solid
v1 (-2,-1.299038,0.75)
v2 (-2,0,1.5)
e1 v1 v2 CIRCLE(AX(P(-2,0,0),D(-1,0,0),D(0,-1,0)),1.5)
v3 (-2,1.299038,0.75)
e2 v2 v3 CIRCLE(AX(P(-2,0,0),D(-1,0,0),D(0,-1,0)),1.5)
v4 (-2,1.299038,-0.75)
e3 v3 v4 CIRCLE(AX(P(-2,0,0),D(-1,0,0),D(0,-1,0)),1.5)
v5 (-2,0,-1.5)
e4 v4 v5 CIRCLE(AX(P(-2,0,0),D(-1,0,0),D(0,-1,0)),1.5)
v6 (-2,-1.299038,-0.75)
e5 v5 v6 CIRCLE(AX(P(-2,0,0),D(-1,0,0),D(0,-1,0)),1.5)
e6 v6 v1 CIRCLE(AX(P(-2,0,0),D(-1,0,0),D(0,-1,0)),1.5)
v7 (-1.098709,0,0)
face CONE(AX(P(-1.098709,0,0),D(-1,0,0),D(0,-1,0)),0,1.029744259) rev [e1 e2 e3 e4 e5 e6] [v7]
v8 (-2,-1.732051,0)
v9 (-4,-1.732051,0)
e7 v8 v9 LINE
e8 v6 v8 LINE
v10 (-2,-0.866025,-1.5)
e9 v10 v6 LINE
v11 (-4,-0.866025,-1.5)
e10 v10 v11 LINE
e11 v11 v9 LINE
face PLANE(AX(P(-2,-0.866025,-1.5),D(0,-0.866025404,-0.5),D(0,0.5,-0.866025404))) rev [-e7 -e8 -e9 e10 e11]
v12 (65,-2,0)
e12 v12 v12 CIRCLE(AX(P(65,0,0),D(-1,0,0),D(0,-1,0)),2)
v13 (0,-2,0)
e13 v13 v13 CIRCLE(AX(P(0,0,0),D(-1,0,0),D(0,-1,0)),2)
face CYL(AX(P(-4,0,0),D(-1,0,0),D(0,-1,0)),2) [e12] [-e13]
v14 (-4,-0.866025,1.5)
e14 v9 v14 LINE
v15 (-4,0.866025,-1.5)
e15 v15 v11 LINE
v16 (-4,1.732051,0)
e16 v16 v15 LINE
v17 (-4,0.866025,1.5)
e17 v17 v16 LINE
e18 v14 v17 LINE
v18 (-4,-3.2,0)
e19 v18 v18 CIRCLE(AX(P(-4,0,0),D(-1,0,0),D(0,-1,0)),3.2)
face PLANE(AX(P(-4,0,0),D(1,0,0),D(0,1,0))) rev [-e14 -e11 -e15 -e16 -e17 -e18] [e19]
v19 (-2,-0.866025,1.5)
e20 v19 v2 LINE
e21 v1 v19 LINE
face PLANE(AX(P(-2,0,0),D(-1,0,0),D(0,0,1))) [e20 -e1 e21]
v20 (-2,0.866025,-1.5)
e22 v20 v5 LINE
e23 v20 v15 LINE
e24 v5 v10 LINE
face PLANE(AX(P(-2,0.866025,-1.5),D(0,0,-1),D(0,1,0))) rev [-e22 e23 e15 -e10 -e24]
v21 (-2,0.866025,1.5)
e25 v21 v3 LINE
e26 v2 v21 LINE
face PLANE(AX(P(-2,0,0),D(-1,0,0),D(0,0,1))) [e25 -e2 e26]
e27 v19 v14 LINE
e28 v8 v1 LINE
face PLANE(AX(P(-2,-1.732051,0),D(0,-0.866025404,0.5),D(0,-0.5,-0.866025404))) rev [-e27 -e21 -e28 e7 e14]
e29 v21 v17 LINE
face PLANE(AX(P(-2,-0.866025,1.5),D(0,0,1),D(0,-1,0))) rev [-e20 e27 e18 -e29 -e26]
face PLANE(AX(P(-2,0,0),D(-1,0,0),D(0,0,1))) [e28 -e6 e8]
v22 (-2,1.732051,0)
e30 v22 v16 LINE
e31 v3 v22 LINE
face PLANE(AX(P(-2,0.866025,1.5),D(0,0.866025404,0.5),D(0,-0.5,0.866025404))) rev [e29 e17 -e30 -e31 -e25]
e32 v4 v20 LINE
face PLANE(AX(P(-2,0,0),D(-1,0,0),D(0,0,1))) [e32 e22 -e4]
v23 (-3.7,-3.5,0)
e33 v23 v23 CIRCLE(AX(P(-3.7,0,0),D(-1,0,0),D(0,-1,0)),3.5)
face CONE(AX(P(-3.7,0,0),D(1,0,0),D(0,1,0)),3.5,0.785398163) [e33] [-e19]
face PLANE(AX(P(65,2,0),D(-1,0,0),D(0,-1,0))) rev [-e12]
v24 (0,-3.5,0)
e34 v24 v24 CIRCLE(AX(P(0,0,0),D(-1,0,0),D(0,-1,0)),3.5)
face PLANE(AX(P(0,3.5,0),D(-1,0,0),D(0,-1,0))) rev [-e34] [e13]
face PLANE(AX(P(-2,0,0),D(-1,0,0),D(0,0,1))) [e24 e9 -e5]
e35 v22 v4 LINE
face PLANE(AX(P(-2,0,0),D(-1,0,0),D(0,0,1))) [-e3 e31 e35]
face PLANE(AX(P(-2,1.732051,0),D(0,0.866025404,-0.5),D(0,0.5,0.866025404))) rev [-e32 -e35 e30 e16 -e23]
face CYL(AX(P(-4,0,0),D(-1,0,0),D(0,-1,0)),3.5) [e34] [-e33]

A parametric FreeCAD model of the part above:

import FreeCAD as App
import Part
import Sketcher
from FreeCAD import Vector
Q = App.Units.Quantity


def add_polygon(sketch, points):
    """Adds a closed chain of lines whose ends are joined by coincident constraints."""
    first, n = sketch.GeometryCount, len(points)
    for a, b in zip(points, points[1:] + points[:1]):
        sketch.addGeometry(Part.LineSegment(App.Vector(*a, 0), App.Vector(*b, 0)), False)
    for i in range(n):
        sketch.addConstraint(Sketcher.Constraint("Coincident", first + i, 2, first + (i + 1) % n, 1))

doc = App.newDocument("Part")
params = doc.addObject("Spreadsheet::Sheet", "Params")
for row, (alias, value) in enumerate([
    ("sketch1_width", "69 mm"),
    ("sketch1_width2", "65 mm"),
    ("sketch1_height", "2 mm"),
    ("sketch1_width3", "3.7 mm"),
    ("sketch1_height2", "3.2 mm"),
    ("revolution_angle", "360 deg"),
    ("pocket1_length", "2 mm"),
    ("sketch3_height", "1.5 mm"),
    ("groove_angle", "360 deg"),
], start=1):
    params.set(f"A{row}", alias)
    params.set(f"B{row}", "=" + value)
    params.setAlias(f"B{row}", alias)

body = doc.addObject("PartDesign::Body", "Body")

sketch1 = body.newObject("Sketcher::SketchObject", "Sketch")
sketch1.AttachmentSupport = (doc.getObject("XY_Plane"), [""])
sketch1.MapMode = "FlatFace"
add_polygon(sketch1, [(-4, 3.2), (-4, 0), (65, 0), (65, 2), (0, 2), (0, 3.5), (-3.7, 3.5)])
sketch1.addConstraint([
    Sketcher.Constraint("Vertical", 0),
    Sketcher.Constraint("Horizontal", 1),
    Sketcher.Constraint("Vertical", 2),
    Sketcher.Constraint("Horizontal", 3),
    Sketcher.Constraint("Vertical", 4),
    Sketcher.Constraint("Horizontal", 5),
    Sketcher.Constraint("PointOnObject", 0, 2, -1),
    Sketcher.Constraint("PointOnObject", 3, 2, -2),
    Sketcher.Constraint("DistanceX", 1, 1, 1, 2, Q("69 mm")),
    Sketcher.Constraint("DistanceX", 3, 2, 3, 1, Q("65 mm")),
    Sketcher.Constraint("DistanceY", 2, 1, 2, 2, Q("2 mm")),
    Sketcher.Constraint("Angle", 6, Q("-135 deg")),
    Sketcher.Constraint("DistanceX", 5, 2, 5, 1, Q("3.7 mm")),
    Sketcher.Constraint("DistanceY", 0, 2, 0, 1, Q("3.2 mm")),
])
sketch1.setExpression("Constraints[15]", "Params.sketch1_width")
sketch1.setExpression("Constraints[16]", "Params.sketch1_width2")
sketch1.setExpression("Constraints[17]", "Params.sketch1_height")
sketch1.setExpression("Constraints[19]", "Params.sketch1_width3")
sketch1.setExpression("Constraints[20]", "Params.sketch1_height2")
revolution = body.newObject("PartDesign::Revolution", "Revolution")
revolution.Profile = sketch1
revolution.ReferenceAxis = (sketch1, ["H_Axis"])
revolution.setExpression("Angle", "Params.revolution_angle")

sketch2 = body.newObject("Sketcher::SketchObject", "Sketch001")
sketch2.AttachmentSupport = (doc.getObject("YZ_Plane"), [""])
sketch2.MapMode = "FlatFace"
sketch2.AttachmentOffset = App.Placement(Vector(0, 0, -4), App.Rotation())
add_polygon(sketch2, [(1.7, 0), (0.9, -1.5), (-0.9, -1.5), (-1.7, 0), (-0.9, 1.5), (0.9, 1.5)])
sketch2.addConstraint([
    Sketcher.Constraint("Horizontal", 1),
    Sketcher.Constraint("Horizontal", 4),
    Sketcher.Constraint("Symmetric", 0, 2, 3, 2, -1, 1),
    Sketcher.Constraint("Symmetric", 2, 2, 5, 2, -1, 1),
    Sketcher.Constraint("PointOnObject", 2, 2, -1),
    Sketcher.Constraint("Parallel", 2, 5),
    Sketcher.Constraint("Vertical", 1, 2, 3, 2),
    Sketcher.Constraint("Angle", 0, Q("-120 deg")),
    Sketcher.Constraint("DistanceY", 1, 2, 3, 2, Q("3 mm")),
    Sketcher.Constraint("DistanceX", 1, 2, 1, 1, Q("1.732051 mm")),
])
pocket1 = body.newObject("PartDesign::Pocket", "Pocket")
pocket1.Profile = sketch2
pocket1.setExpression("Length", "Params.pocket1_length")
pocket1.Reversed = True

sketch3 = body.newObject("Sketcher::SketchObject", "Sketch002")
sketch3.AttachmentSupport = (doc.getObject("XY_Plane"), [""])
sketch3.MapMode = "FlatFace"
add_polygon(sketch3, [(-2, 1.5), (-2, 0), (-1.1, 0)])
sketch3.addConstraint([
    Sketcher.Constraint("Vertical", 0),
    Sketcher.Constraint("Horizontal", 1),
    Sketcher.Constraint("PointOnObject", 0, 2, -1),
    Sketcher.Constraint("Angle", 2, Q("121 deg")),
    Sketcher.Constraint("DistanceY", 0, 2, 0, 1, Q("1.5 mm")),
    Sketcher.Constraint("DistanceX", 0, 2, -1, 1, Q("2 mm")),
])
sketch3.setExpression("Constraints[7]", "Params.sketch3_height")
groove = body.newObject("PartDesign::Groove", "Groove")
groove.Profile = sketch3
groove.ReferenceAxis = (sketch3, ["H_Axis"])
groove.setExpression("Angle", "Params.groove_angle")

doc.recompute()
